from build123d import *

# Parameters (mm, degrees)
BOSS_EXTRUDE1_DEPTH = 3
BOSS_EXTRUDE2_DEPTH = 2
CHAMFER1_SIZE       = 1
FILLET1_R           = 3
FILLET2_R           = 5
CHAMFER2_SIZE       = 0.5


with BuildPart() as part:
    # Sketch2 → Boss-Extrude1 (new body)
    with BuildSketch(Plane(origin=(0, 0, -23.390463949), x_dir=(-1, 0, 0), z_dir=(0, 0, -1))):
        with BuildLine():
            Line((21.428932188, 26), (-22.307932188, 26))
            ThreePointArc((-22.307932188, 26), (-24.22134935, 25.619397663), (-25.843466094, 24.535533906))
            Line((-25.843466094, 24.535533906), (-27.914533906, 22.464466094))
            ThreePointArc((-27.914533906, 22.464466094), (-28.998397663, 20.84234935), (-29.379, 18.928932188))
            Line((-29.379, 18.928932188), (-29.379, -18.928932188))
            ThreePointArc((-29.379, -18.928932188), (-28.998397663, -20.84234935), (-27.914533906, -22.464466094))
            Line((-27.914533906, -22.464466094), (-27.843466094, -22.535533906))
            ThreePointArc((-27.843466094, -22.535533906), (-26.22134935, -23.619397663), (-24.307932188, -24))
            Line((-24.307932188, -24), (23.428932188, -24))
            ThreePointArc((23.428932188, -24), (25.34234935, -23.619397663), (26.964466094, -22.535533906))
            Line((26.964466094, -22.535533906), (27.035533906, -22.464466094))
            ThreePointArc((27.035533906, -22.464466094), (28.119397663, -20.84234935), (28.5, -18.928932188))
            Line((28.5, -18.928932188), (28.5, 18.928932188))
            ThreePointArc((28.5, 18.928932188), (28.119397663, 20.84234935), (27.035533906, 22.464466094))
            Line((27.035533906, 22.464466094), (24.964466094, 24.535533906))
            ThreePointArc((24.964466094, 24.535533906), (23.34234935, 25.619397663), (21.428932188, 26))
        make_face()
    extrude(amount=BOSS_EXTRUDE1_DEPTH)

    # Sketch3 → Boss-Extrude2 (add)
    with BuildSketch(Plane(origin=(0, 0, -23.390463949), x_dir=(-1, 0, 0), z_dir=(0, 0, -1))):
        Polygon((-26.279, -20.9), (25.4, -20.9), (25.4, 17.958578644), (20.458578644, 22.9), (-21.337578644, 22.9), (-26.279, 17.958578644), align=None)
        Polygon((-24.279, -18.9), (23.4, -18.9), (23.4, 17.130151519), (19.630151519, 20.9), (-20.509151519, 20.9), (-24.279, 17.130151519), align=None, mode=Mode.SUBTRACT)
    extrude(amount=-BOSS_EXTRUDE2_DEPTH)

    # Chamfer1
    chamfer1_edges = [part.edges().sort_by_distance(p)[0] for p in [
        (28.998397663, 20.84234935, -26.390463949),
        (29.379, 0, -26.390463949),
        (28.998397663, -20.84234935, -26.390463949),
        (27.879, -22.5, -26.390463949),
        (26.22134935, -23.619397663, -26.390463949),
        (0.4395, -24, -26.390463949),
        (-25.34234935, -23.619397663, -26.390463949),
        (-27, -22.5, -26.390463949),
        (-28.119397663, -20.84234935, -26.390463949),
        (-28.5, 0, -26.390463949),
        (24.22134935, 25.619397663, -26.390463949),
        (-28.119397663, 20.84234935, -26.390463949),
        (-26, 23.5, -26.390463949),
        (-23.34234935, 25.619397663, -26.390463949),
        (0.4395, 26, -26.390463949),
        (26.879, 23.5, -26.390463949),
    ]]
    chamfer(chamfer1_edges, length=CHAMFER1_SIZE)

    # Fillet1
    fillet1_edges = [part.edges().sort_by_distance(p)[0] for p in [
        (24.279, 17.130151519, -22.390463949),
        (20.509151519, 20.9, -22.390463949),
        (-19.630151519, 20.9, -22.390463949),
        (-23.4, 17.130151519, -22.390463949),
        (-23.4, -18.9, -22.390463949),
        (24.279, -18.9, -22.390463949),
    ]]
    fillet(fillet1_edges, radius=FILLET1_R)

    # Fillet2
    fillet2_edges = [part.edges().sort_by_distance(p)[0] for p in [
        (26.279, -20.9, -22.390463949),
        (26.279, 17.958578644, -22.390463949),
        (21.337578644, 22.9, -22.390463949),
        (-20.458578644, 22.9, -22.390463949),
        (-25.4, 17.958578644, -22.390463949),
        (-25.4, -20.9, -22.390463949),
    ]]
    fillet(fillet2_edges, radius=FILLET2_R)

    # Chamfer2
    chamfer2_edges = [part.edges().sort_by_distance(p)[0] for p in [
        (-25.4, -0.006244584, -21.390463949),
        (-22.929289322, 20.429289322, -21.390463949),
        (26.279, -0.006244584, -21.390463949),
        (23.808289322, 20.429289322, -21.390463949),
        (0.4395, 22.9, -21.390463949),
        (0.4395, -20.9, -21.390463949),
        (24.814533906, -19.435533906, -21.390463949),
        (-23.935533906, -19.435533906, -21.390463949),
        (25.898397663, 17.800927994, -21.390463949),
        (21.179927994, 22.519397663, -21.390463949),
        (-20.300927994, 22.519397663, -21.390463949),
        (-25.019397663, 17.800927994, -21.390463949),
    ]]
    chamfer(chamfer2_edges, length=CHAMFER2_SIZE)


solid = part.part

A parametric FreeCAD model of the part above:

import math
import FreeCAD as App
import Part
import Sketcher
from FreeCAD import Vector
Q = App.Units.Quantity


def edges_at(feature, points):
    """Names of the edges that pass closest to the given points."""
    edges = feature.Shape.Edges
    near = lambda p: min(range(len(edges)), key=lambda i: edges[i].distToShape(Part.Vertex(*p))[0])
    return sorted({f"Edge{near(p) + 1}" for p in points})


def add_polygon(sketch, points):
    """Adds a closed chain of lines whose ends are joined by coincident constraints."""
    first, n = sketch.GeometryCount, len(points)
    for a, b in zip(points, points[1:] + points[:1]):
        sketch.addGeometry(Part.LineSegment(App.Vector(*a, 0), App.Vector(*b, 0)), False)
    for i in range(n):
        sketch.addConstraint(Sketcher.Constraint("Coincident", first + i, 2, first + (i + 1) % n, 1))

doc = App.newDocument("Part")
body = doc.addObject("PartDesign::Body", "Body")

# Sketch on XY plane
sketch1 = doc.addObject("Sketcher::SketchObject", "Sketch")
body.addObject(sketch1)
sketch1.AttachmentSupport = (doc.XY_Plane, [""])
sketch1.MapMode = "FlatFace"
sketch1.AttachmentOffset = App.Placement(Vector(0, 0, -23.390464), App.Rotation())
sketch1.addGeometry([
    Part.LineSegment(Vector(-21.43, 26, 0), Vector(22.31, 26, 0)),  # 0
    Part.ArcOfCircle(Part.Circle(Vector(22.31, 21, 0), Vector(0, 0, 1), 5), math.radians(45), math.radians(90)),  # 1
    Part.LineSegment(Vector(25.84, 24.54, 0), Vector(27.91, 22.46, 0)),  # 2
    Part.ArcOfCircle(Part.Circle(Vector(24.38, 18.93, 0), Vector(0, 0, 1), 5), math.radians(0), math.radians(45)),  # 3
    Part.LineSegment(Vector(29.38, 18.93, 0), Vector(29.38, -18.93, 0)),  # 4
    Part.ArcOfCircle(Part.Circle(Vector(24.38, -18.93, 0), Vector(0, 0, 1), 5), math.radians(-45), math.radians(0)),  # 5
    Part.LineSegment(Vector(27.91, -22.46, 0), Vector(27.84, -22.54, 0)),  # 6
    Part.ArcOfCircle(Part.Circle(Vector(24.31, -19, 0), Vector(0, 0, 1), 5), math.radians(-90), math.radians(-45)),  # 7
    Part.LineSegment(Vector(24.31, -24, 0), Vector(-23.43, -24, 0)),  # 8
    Part.ArcOfCircle(Part.Circle(Vector(-23.43, -19, 0), Vector(0, 0, 1), 5), math.radians(-135), math.radians(-90)),  # 9
    Part.LineSegment(Vector(-26.96, -22.54, 0), Vector(-27.04, -22.46, 0)),  # 10
    Part.ArcOfCircle(Part.Circle(Vector(-23.5, -18.93, 0), Vector(0, 0, 1), 5), math.radians(180), math.radians(225)),  # 11
    Part.LineSegment(Vector(-28.5, -18.93, 0), Vector(-28.5, 18.93, 0)),  # 12
    Part.ArcOfCircle(Part.Circle(Vector(-23.5, 18.93, 0), Vector(0, 0, 1), 5), math.radians(135), math.radians(180)),  # 13
    Part.LineSegment(Vector(-27.04, 22.46, 0), Vector(-24.96, 24.54, 0)),  # 14
    Part.ArcOfCircle(Part.Circle(Vector(-21.43, 21, 0), Vector(0, 0, 1), 5), math.radians(90), math.radians(135)),  # 15
], False)
sketch1.addConstraint([
    Sketcher.Constraint("Tangent", 0, 2, 1, 2),
    Sketcher.Constraint("Tangent", 1, 1, 2, 1),
    Sketcher.Constraint("Tangent", 2, 2, 3, 2),
    Sketcher.Constraint("Tangent", 3, 1, 4, 1),
    Sketcher.Constraint("Tangent", 4, 2, 5, 2),
    Sketcher.Constraint("Tangent", 5, 1, 6, 1),
    Sketcher.Constraint("Tangent", 6, 2, 7, 2),
    Sketcher.Constraint("Tangent", 7, 1, 8, 1),
    Sketcher.Constraint("Tangent", 8, 2, 9, 2),
    Sketcher.Constraint("Tangent", 9, 1, 10, 1),
    Sketcher.Constraint("Tangent", 10, 2, 11, 2),
    Sketcher.Constraint("Tangent", 11, 1, 12, 1),
    Sketcher.Constraint("Tangent", 12, 2, 13, 2),
    Sketcher.Constraint("Tangent", 13, 1, 14, 1),
    Sketcher.Constraint("Tangent", 14, 2, 15, 2),
    Sketcher.Constraint("Tangent", 15, 1, 0, 1),
    Sketcher.Constraint("Horizontal", 0),
    Sketcher.Constraint("Vertical", 4),
    Sketcher.Constraint("Horizontal", 8),
    Sketcher.Constraint("Vertical", 12),
    Sketcher.Constraint("Equal", 1, 3),
    Sketcher.Constraint("Equal", 3, 5),
    Sketcher.Constraint("Equal", 5, 7),
    Sketcher.Constraint("Equal", 7, 9),
    Sketcher.Constraint("Equal", 9, 11),
    Sketcher.Constraint("Equal", 11, 13),
    Sketcher.Constraint("Equal", 13, 15),
    Sketcher.Constraint("Symmetric", 2, 2, 5, 1, -1),
    Sketcher.Constraint("Symmetric", 10, 2, 13, 1, -1),
    Sketcher.Constraint("Perpendicular", 2, 6),
    Sketcher.Constraint("Perpendicular", 6, 10),
    Sketcher.Constraint("Horizontal", 5, 3, 11, 3),
    Sketcher.Constraint("Radius", 1, Q("5 mm")),
    Sketcher.Constraint("DistanceY", -1, 1, 1, 3, Q("21 mm")),
    Sketcher.Constraint("DistanceY", 7, 3, -1, 1, Q("19 mm")),
    Sketcher.Constraint("DistanceX", 11, 3, -1, 1, Q("23.5 mm")),
    Sketcher.Constraint("DistanceX", -1, 1, 3, 3, Q("24.379 mm")),
    Sketcher.Constraint("DistanceY", 3, 3, 1, 1, Q("5.606602 mm")),
])
pad1 = doc.addObject("PartDesign::Pad", "Pad")
body.addObject(pad1)
pad1.Profile = sketch1
pad1.Length = 3
pad1.Reversed = True

# Sketch on XY plane
sketch2 = doc.addObject("Sketcher::SketchObject", "Sketch001")
body.addObject(sketch2)
sketch2.AttachmentSupport = (doc.XY_Plane, [""])
sketch2.MapMode = "FlatFace"
sketch2.AttachmentOffset = App.Placement(Vector(0, 0, -23.390464), App.Rotation())
add_polygon(sketch2, [(26, -21), (-25, -21), (-25, 18), (-20, 23), (21, 23), (26, 18)])  # lines 0-5
add_polygon(sketch2, [(-23, -19), (24, -19), (24, 17), (21, 21), (-20, 21), (-23, 17)])  # lines 6-11
sketch2.addConstraint([
    Sketcher.Constraint("Horizontal", 0),
    Sketcher.Constraint("Vertical", 1),
    Sketcher.Constraint("Horizontal", 3),
    Sketcher.Constraint("Vertical", 5),
    Sketcher.Constraint("Horizontal", 6),
    Sketcher.Constraint("Vertical", 7),
    Sketcher.Constraint("Horizontal", 9),
    Sketcher.Constraint("Vertical", 11),
    Sketcher.Constraint("Perpendicular", 2, 4),
    Sketcher.Constraint("Parallel", 4, 8),
    Sketcher.Constraint("Perpendicular", 8, 10),
    Sketcher.Constraint("Horizontal", 1, 2, 4, 2),
    Sketcher.Constraint("Horizontal", 7, 2, 10, 2),
    Sketcher.Constraint("Equal", 2, 4),
    Sketcher.Constraint("DistanceX", 6, 2, 5, 2, Q("2 mm")),
    Sketcher.Constraint("DistanceY", 5, 2, 6, 2, Q("2 mm")),
    Sketcher.Constraint("DistanceY", 8, 2, 3, 2, Q("2 mm")),
    Sketcher.Constraint("DistanceX", 1, 2, 10, 2, Q("2 mm")),
    Sketcher.Constraint("DistanceX", 0, 2, -1, 1, Q("25.4 mm")),
    Sketcher.Constraint("DistanceY", 0, 2, -1, 1, Q("20.9 mm")),
    Sketcher.Constraint("DistanceY", -1, 1, 2, 2, Q("22.9 mm")),
    Sketcher.Constraint("DistanceX", 0, 2, 0, 1, Q("51.679 mm")),
    Sketcher.Constraint("DistanceY", 1, 1, 1, 2, Q("38.858579 mm")),
    Sketcher.Constraint("DistanceY", 7, 1, 7, 2, Q("36.030152 mm")),
])
pad2 = doc.addObject("PartDesign::Pad", "Pad001")
body.addObject(pad2)
pad2.Profile = sketch2
pad2.Length = 2
doc.recompute()

chamfer = doc.addObject("PartDesign::Chamfer", "Chamfer")
body.addObject(chamfer)
chamfer.Base = (pad2, edges_at(pad2, [
    (28.998, 20.842, -26.39),
    (29.379, 0, -26.39),
    (28.998, -20.842, -26.39),
    (27.879, -22.5, -26.39),
    (26.221, -23.619, -26.39),
    (0.44, -24, -26.39),
    (-25.342, -23.619, -26.39),
    (-27, -22.5, -26.39),
    (-28.119, -20.842, -26.39),
    (-28.5, 0, -26.39),
    (24.221, 25.619, -26.39),
    (-28.119, 20.842, -26.39),
    (-26, 23.5, -26.39),
    (-23.342, 25.619, -26.39),
    (0.44, 26, -26.39),
    (26.879, 23.5, -26.39),
]))
chamfer.Size = 1
doc.recompute()

fillet = doc.addObject("PartDesign::Fillet", "Fillet")
body.addObject(fillet)
fillet.Base = (chamfer, edges_at(chamfer, [
    (24.279, 17.13, -22.39),
    (20.509, 20.9, -22.39),
    (-19.63, 20.9, -22.39),
    (-23.4, 17.13, -22.39),
    (-23.4, -18.9, -22.39),
    (24.279, -18.9, -22.39),
]))
fillet.Radius = 3
doc.recompute()

fillet2 = doc.addObject("PartDesign::Fillet", "Fillet001")
body.addObject(fillet2)
fillet2.Base = (fillet, edges_at(fillet, [
    (26.279, -20.9, -22.39),
    (26.279, 17.959, -22.39),
    (21.338, 22.9, -22.39),
    (-20.459, 22.9, -22.39),
    (-25.4, 17.959, -22.39),
    (-25.4, -20.9, -22.39),
]))
fillet2.Radius = 5
doc.recompute()

chamfer2 = doc.addObject("PartDesign::Chamfer", "Chamfer001")
body.addObject(chamfer2)
chamfer2.Base = (fillet2, edges_at(fillet2, [
    (-25.4, -0.006, -21.39),
    (-22.929, 20.429, -21.39),
    (26.279, -0.006, -21.39),
    (23.808, 20.429, -21.39),
    (0.44, 22.9, -21.39),
    (0.44, -20.9, -21.39),
    (24.815, -19.436, -21.39),
    (-23.936, -19.436, -21.39),
    (25.898, 17.801, -21.39),
    (21.18, 22.519, -21.39),
    (-20.301, 22.519, -21.39),
    (-25.019, 17.801, -21.39),
]))
chamfer2.Size = 0.5

doc.recompute()
